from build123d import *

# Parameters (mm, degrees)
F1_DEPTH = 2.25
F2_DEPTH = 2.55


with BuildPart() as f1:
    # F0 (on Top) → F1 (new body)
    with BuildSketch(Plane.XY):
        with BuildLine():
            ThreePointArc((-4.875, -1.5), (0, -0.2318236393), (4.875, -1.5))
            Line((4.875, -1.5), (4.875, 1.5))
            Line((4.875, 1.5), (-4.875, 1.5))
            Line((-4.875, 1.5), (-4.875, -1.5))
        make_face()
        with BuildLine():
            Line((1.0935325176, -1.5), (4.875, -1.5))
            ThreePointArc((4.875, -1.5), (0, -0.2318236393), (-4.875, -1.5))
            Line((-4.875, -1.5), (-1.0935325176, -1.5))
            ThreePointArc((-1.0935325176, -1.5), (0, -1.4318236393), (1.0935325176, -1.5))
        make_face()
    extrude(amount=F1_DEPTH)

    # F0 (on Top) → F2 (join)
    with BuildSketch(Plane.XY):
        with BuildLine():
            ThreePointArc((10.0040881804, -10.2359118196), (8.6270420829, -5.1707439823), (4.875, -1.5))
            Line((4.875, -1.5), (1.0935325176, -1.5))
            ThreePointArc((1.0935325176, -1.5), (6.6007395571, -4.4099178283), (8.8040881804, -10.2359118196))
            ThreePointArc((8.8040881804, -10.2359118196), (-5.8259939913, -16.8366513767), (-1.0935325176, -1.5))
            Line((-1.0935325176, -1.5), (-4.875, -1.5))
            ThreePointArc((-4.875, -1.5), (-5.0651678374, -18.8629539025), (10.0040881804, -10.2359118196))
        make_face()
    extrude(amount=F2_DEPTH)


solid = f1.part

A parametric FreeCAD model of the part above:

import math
import FreeCAD as App
import Part
import Sketcher

doc = App.newDocument("Part")
params = doc.addObject("Spreadsheet::Sheet", "Params")
for row, (alias, value) in enumerate([
    ("sketch1_height", "3 mm"),
    ("sketch1_width", "9.75 mm"),
    ("pad1_length", "2.25 mm"),
    ("pad2_length", "2.55 mm"),
], start=1):
    params.set(f"A{row}", alias)
    params.set(f"B{row}", "=" + value)
    params.setAlias(f"B{row}", alias)

body = doc.addObject("PartDesign::Body", "Body")

# Sketch on XY plane
sketch1 = body.newObject("Sketcher::SketchObject", "Sketch")
sketch1.AttachmentSupport = (doc.getObject("XY_Plane"), [""])
sketch1.MapMode = "FlatFace"
sketch1.addGeometry([
    Part.LineSegment(App.Vector(4.9, -1.5, 0), App.Vector(4.9, 1.5, 0)),  # 0
    Part.LineSegment(App.Vector(4.9, 1.5, 0), App.Vector(-4.9, 1.5, 0)),  # 1
    Part.LineSegment(App.Vector(-4.9, 1.5, 0), App.Vector(-4.9, -1.5, 0)),  # 2
    Part.LineSegment(App.Vector(-4.9, -1.5, 0), App.Vector(-1.1, -1.5, 0)),  # 3
    Part.ArcOfCircle(Part.Circle(App.Vector(0, -10.2, 0), App.Vector(0, 0, 1), 8.8), math.radians(82.87), math.radians(97.13)),  # 4
    Part.LineSegment(App.Vector(1.1, -1.5, 0), App.Vector(4.9, -1.5, 0)),  # 5
], False)
sketch1.addConstraint([
    Sketcher.Constraint("Coincident", 0, 2, 1, 1),
    Sketcher.Constraint("Coincident", 1, 2, 2, 1),
    Sketcher.Constraint("Coincident", 2, 2, 3, 1),
    Sketcher.Constraint("Coincident", 3, 2, 4, 2),
    Sketcher.Constraint("Coincident", 4, 1, 5, 1),
    Sketcher.Constraint("Coincident", 5, 2, 0, 1),
    Sketcher.Constraint("Vertical", 0),
    Sketcher.Constraint("Horizontal", 1),
    Sketcher.Constraint("Vertical", 2),
    Sketcher.Constraint("Horizontal", 3),
    Sketcher.Constraint("Horizontal", 5),
    Sketcher.Constraint("Symmetric", 0, 2, 2, 2, -1, 1),
    Sketcher.Constraint("Symmetric", 3, 2, 4, 1, -2),
    Sketcher.Constraint("DistanceY", 0, 1, 0, 2, 3.0),
    Sketcher.Constraint("DistanceX", 1, 2, 1, 1, 9.75),
    Sketcher.Constraint("Radius", 4, 8.804088),
    Sketcher.Constraint("DistanceX", 3, 1, 3, 2, 3.781467),
])
sketch1.setExpression("Constraints[13]", "Params.sketch1_height")
sketch1.setExpression("Constraints[14]", "Params.sketch1_width")
pad1 = body.newObject("PartDesign::Pad", "Pad")
pad1.Profile = sketch1
pad1.setExpression("Length", "Params.pad1_length")

# Sketch on XY plane
sketch2 = body.newObject("Sketcher::SketchObject", "Sketch001")
sketch2.AttachmentSupport = (doc.getObject("XY_Plane"), [""])
sketch2.MapMode = "FlatFace"
sketch2.addGeometry([
    Part.ArcOfCircle(Part.Circle(App.Vector(0, -10.2, 0), App.Vector(0, 0, 1), 10), math.radians(0), math.radians(61)),  # 0
    Part.LineSegment(App.Vector(4.9, -1.5, 0), App.Vector(1.1, -1.5, 0)),  # 1
    Part.ArcOfCircle(Part.Circle(App.Vector(0, -10.2, 0), App.Vector(0, 0, 1), 8.8), math.radians(0), math.radians(83)),  # 2
    Part.ArcOfCircle(Part.Circle(App.Vector(0, -10.2, 0), App.Vector(0, 0, 1), 8.8), math.radians(97), math.radians(360)),  # 3
    Part.LineSegment(App.Vector(-1.1, -1.5, 0), App.Vector(-4.9, -1.5, 0)),  # 4
    Part.ArcOfCircle(Part.Circle(App.Vector(0, -10.2, 0), App.Vector(0, 0, 1), 10), math.radians(119), math.radians(360)),  # 5
], False)
sketch2.addConstraint([
    Sketcher.Constraint("Coincident", 0, 2, 1, 1),
    Sketcher.Constraint("Coincident", 1, 2, 2, 2),
    Sketcher.Constraint("Tangent", 2, 1, 3, 2),
    Sketcher.Constraint("Coincident", 3, 1, 4, 1),
    Sketcher.Constraint("Coincident", 4, 2, 5, 1),
    Sketcher.Constraint("Tangent", 5, 2, 0, 1),
    Sketcher.Constraint("Horizontal", 1),
    Sketcher.Constraint("Horizontal", 4),
    Sketcher.Constraint("Coincident", 2, 3, 0, 3),
    Sketcher.Constraint("Equal", 2, 3),
    Sketcher.Constraint("Equal", 0, 5),
    Sketcher.Constraint("Symmetric", 1, 2, 3, 1, -2),
    Sketcher.Constraint("Horizontal", 5, 3, 2, 1),
    Sketcher.Constraint("Horizontal", 2, 1, 5, 2),
    Sketcher.Constraint("DistanceY", 0, 2, -1, 1, 1.5),
    Sketcher.Constraint("DistanceX", 2, 1, 5, 2, 1.2),
    Sketcher.Constraint("Radius", 0, 10.004088),
    Sketcher.Constraint("DistanceX", 4, 2, 0, 2, 9.75),
])
pad2 = body.newObject("PartDesign::Pad", "Pad001")
pad2.Profile = sketch2
pad2.setExpression("Length", "Params.pad2_length")

doc.recompute()
